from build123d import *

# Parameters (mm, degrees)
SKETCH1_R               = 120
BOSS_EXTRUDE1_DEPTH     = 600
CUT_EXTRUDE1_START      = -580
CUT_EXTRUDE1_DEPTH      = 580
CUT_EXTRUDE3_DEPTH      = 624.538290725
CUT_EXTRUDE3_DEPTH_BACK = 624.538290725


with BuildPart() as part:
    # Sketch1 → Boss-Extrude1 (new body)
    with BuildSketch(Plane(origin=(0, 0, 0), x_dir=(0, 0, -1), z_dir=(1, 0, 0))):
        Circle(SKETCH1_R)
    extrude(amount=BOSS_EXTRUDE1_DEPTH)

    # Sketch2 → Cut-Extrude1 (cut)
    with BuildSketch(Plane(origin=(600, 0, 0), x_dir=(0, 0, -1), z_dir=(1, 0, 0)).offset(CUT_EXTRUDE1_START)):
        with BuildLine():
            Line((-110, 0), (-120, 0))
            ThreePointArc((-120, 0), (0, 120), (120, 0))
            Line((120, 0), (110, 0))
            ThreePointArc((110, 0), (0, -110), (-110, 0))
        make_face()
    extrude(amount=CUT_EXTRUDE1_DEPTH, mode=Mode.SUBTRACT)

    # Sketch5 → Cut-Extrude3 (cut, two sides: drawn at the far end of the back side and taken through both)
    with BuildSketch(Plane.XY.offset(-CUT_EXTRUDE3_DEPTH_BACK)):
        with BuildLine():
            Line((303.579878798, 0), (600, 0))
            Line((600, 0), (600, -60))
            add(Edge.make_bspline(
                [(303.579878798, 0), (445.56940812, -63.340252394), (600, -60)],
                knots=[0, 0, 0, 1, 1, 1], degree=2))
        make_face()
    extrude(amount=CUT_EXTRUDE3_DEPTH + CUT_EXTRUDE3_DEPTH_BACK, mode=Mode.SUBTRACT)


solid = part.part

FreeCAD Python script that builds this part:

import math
import FreeCAD as App
import Part
import Sketcher
from FreeCAD import Vector
Q = App.Units.Quantity

doc = App.newDocument("Part")
params = doc.addObject("Spreadsheet::Sheet", "Params")
for row, (alias, value) in enumerate([
    ("sketch1_diameter", "240 mm"),
    ("pad1_length", "600 mm"),
    ("sketch2_radius", "110 mm"),
    ("sketch2_radius2", "120 mm"),
    ("pocket1_length", "580 mm"),
], start=1):
    params.set(f"A{row}", alias)
    params.set(f"B{row}", "=" + value)
    params.setAlias(f"B{row}", alias)

body = doc.addObject("PartDesign::Body", "Body")

# Sketch on YZ plane
sketch1 = body.newObject("Sketcher::SketchObject", "Sketch")
sketch1.AttachmentSupport = (doc.getObject("YZ_Plane"), [""])
sketch1.MapMode = "FlatFace"
sketch1.addGeometry(Part.Circle(Vector(0, 0, 0), Vector(0, 0, 1), 120), False)
sketch1.addConstraint([
    Sketcher.Constraint("Coincident", 0, 3, -1, 1),
    Sketcher.Constraint("Diameter", 0, Q("240 mm")),
])
sketch1.setExpression("Constraints[1]", "Params.sketch1_diameter")
pad1 = body.newObject("PartDesign::Pad", "Pad")
pad1.Profile = sketch1
pad1.setExpression("Length", "Params.pad1_length")

# Sketch on YZ plane
sketch2 = body.newObject("Sketcher::SketchObject", "Sketch001")
sketch2.AttachmentSupport = (doc.getObject("YZ_Plane"), [""])
sketch2.MapMode = "FlatFace"
sketch2.AttachmentOffset = App.Placement(Vector(0, 0, 20), App.Rotation())
sketch2.addGeometry([
    Part.LineSegment(Vector(0, 120, 0), Vector(0, 110, 0)),
    Part.ArcOfCircle(Part.Circle(Vector(0, 0, 0), Vector(0, 0, 1), 110), math.radians(90), math.radians(270)),
    Part.LineSegment(Vector(0, -110, 0), Vector(0, -120, 0)),
    Part.ArcOfCircle(Part.Circle(Vector(0, 0, 0), Vector(0, 0, 1), 120), math.radians(-90), math.radians(90)),
], False)
sketch2.addConstraint([
    Sketcher.Constraint("Coincident", 0, 2, 1, 1),
    Sketcher.Constraint("Coincident", 1, 2, 2, 1),
    Sketcher.Constraint("Coincident", 2, 2, 3, 1),
    Sketcher.Constraint("Coincident", 3, 2, 0, 1),
    Sketcher.Constraint("Vertical", 0),
    Sketcher.Constraint("Vertical", 2),
    Sketcher.Constraint("Coincident", 1, 3, -1, 1),
    Sketcher.Constraint("Coincident", 3, 3, -1, 1),
    Sketcher.Constraint("PointOnObject", 0, 2, -2),
    Sketcher.Constraint("PointOnObject", 1, 2, -2),
    Sketcher.Constraint("Radius", 1, Q("110 mm")),
    Sketcher.Constraint("Radius", 3, Q("120 mm")),
])
sketch2.setExpression("Constraints[10]", "Params.sketch2_radius")
sketch2.setExpression("Constraints[11]", "Params.sketch2_radius2")
pocket1 = body.newObject("PartDesign::Pocket", "Pocket")
pocket1.Profile = sketch2
pocket1.setExpression("Length", "Params.pocket1_length")
pocket1.Reversed = True

# Sketch on XY plane
sketch3 = body.newObject("Sketcher::SketchObject", "Sketch002")
sketch3.AttachmentSupport = (doc.getObject("XY_Plane"), [""])
sketch3.MapMode = "FlatFace"
sketch3.addGeometry([
    Part.LineSegment(Vector(600, 0, 0), Vector(303.579879, 0, 0)),
    Part.BSplineCurve([Vector(303.579879, 0, 0), Vector(445.569408, -63.340252, 0), Vector(600, -60, 0)], [3, 3], [0, 1], False, 2, [1, 1, 1], False),
    Part.LineSegment(Vector(600, -60, 0), Vector(600, 0, 0)),
], False)
sketch3.addConstraint([
    Sketcher.Constraint("Block", 1),
    Sketcher.Constraint("Coincident", 0, 2, 1, 1),
    Sketcher.Constraint("Coincident", 1, 2, 2, 1),
    Sketcher.Constraint("Coincident", 2, 2, 0, 1),
    Sketcher.Constraint("Horizontal", 0),
    Sketcher.Constraint("Vertical", 2),
])
pocket2 = body.newObject("PartDesign::Pocket", "Pocket001")
pocket2.Profile = sketch3
pocket2.Type = "ThroughAll"
pocket2.Midplane = True

doc.recompute()
